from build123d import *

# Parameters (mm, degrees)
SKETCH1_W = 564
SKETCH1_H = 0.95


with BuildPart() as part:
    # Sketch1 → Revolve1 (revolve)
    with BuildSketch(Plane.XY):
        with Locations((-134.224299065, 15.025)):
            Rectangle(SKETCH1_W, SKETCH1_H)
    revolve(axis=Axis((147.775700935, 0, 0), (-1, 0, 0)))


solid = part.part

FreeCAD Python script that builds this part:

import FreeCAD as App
import Part
import Sketcher
Q = App.Units.Quantity


def add_polygon(sketch, points):
    """Adds a closed chain of lines whose ends are joined by coincident constraints."""
    first, n = sketch.GeometryCount, len(points)
    for a, b in zip(points, points[1:] + points[:1]):
        sketch.addGeometry(Part.LineSegment(App.Vector(*a, 0), App.Vector(*b, 0)), False)
    for i in range(n):
        sketch.addConstraint(Sketcher.Constraint("Coincident", first + i, 2, first + (i + 1) % n, 1))

doc = App.newDocument("Part")
body = doc.addObject("PartDesign::Body", "Body")

# Sketch on XY plane
sketch1 = doc.addObject("Sketcher::SketchObject", "Sketch")
body.addObject(sketch1)
sketch1.AttachmentSupport = (doc.XY_Plane, [""])
sketch1.MapMode = "FlatFace"
add_polygon(sketch1, [(-416.2, 15.5), (-416.2, 14.6), (147.8, 14.6), (147.8, 15.5)])  # lines 0-3
sketch1.addConstraint([
    Sketcher.Constraint("Vertical", 0),
    Sketcher.Constraint("Horizontal", 1),
    Sketcher.Constraint("Vertical", 2),
    Sketcher.Constraint("Horizontal", 3),
    Sketcher.Constraint("DistanceX", 1, 1, 1, 2, Q("564 mm")),
    Sketcher.Constraint("DistanceY", 0, 2, 0, 1, Q("0.95 mm")),
    Sketcher.Constraint("DistanceY", -1, 1, 2, 2, Q("15.5 mm")),
    Sketcher.Constraint("DistanceX", 0, 2, -1, 1, Q("416.224299 mm")),
])
revolution = doc.addObject("PartDesign::Revolution", "Revolution")
body.addObject(revolution)
revolution.Profile = sketch1
revolution.ReferenceAxis = (sketch1, ["H_Axis"])
revolution.Angle = 360

doc.recompute()
